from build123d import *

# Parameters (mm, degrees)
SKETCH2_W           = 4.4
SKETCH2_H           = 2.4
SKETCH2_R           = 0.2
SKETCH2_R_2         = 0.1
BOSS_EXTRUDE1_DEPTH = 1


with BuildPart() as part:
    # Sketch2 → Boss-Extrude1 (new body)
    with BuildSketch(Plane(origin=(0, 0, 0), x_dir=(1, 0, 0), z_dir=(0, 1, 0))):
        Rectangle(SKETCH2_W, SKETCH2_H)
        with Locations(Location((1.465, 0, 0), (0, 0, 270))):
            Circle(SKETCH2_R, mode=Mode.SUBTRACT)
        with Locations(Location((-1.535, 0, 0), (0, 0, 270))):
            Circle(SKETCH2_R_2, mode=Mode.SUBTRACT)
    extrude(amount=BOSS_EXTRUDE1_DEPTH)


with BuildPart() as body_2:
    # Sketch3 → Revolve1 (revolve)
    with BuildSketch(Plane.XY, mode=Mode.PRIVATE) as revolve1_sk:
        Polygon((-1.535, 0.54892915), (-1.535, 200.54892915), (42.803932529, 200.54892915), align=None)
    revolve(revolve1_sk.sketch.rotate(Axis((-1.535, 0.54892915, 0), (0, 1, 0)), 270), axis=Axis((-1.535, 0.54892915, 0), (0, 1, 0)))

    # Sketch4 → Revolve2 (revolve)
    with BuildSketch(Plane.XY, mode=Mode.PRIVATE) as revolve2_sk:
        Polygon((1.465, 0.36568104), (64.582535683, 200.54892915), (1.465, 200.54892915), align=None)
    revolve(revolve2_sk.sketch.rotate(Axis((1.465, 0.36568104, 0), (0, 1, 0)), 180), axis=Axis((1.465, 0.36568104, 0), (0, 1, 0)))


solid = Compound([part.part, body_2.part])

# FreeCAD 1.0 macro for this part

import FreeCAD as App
import Part
import Sketcher
Q = App.Units.Quantity


def add_polygon(sketch, points):
    """Adds a closed chain of lines whose ends are joined by coincident constraints."""
    first, n = sketch.GeometryCount, len(points)
    for a, b in zip(points, points[1:] + points[:1]):
        sketch.addGeometry(Part.LineSegment(App.Vector(*a, 0), App.Vector(*b, 0)), False)
    for i in range(n):
        sketch.addConstraint(Sketcher.Constraint("Coincident", first + i, 2, first + (i + 1) % n, 1))

doc = App.newDocument("Part")
body = doc.addObject("PartDesign::Body", "Body")

sketch1 = body.newObject("Sketcher::SketchObject", "Sketch")
sketch1.AttachmentSupport = (doc.getObject("XZ_Plane"), [""])
sketch1.MapMode = "FlatFace"
add_polygon(sketch1, [(-2.2, -1.2), (-2.2, 1.2), (2.2, 1.2), (2.2, -1.2)])
sketch1.addGeometry(Part.Circle(App.Vector(-1.53, 0, 0), App.Vector(0, 0, 1), 0.1), False)
sketch1.addGeometry(Part.Circle(App.Vector(1.47, 0, 0), App.Vector(0, 0, 1), 0.2), False)
sketch1.addConstraint(Sketcher.Constraint("Vertical", 0))
sketch1.addConstraint(Sketcher.Constraint("Horizontal", 1))
sketch1.addConstraint(Sketcher.Constraint("Vertical", 2))
sketch1.addConstraint(Sketcher.Constraint("Horizontal", 3))
sketch1.addConstraint(Sketcher.Constraint("Symmetric", 0, 2, 2, 2, -1, 1))
sketch1.addConstraint(Sketcher.Constraint("PointOnObject", 4, 3, -1))
sketch1.addConstraint(Sketcher.Constraint("PointOnObject", 5, 3, -1))
sketch1.addConstraint(Sketcher.Constraint("Diameter", 4, 0.2))
sketch1.addConstraint(Sketcher.Constraint("Diameter", 5, 0.4))
sketch1.addConstraint(Sketcher.Constraint("DistanceX", 1, 1, 1, 2, 4.4))
sketch1.addConstraint(Sketcher.Constraint("DistanceY", 0, 1, 0, 2, 2.4))
sketch1.addConstraint(Sketcher.Constraint("DistanceX", 4, 3, 5, 3, 3.0))
sketch1.addConstraint(Sketcher.Constraint("DistanceX", 4, 3, -1, 1, 1.535))
pad1 = body.newObject("PartDesign::Pad", "Pad")
pad1.Profile = sketch1
pad1.Length = 1
pad1.Reversed = True
body2 = doc.addObject("PartDesign::Body", "Body001")

sketch2 = body2.newObject("Sketcher::SketchObject", "Sketch001")
sketch2.AttachmentSupport = (doc.getObject("XY_Plane001"), [""])
sketch2.MapMode = "FlatFace"
add_polygon(sketch2, [(-2, 201), (-2, 1), (43, 201)])
sketch2.addGeometry(Part.LineSegment(App.Vector(-2, 1, 0), App.Vector(-2, 201, 0)), True)
sketch2.addConstraint(Sketcher.Constraint("Vertical", 0))
sketch2.addConstraint(Sketcher.Constraint("Horizontal", 2))
sketch2.addConstraint(Sketcher.Constraint("Vertical", 3))
sketch2.addConstraint(Sketcher.Constraint("Coincident", 3, 1, 0, 2))
sketch2.addConstraint(Sketcher.Constraint("Horizontal", 1, 2, 3, 2))
sketch2.addConstraint(Sketcher.Constraint("DistanceY", 0, 2, 0, 1, 200.0))
sketch2.addConstraint(Sketcher.Constraint("Angle", 1, Q("77.5 deg")))
sketch2.addConstraint(Sketcher.Constraint("DistanceX", 0, 2, -1, 1, 1.535))
sketch2.addConstraint(Sketcher.Constraint("DistanceY", -1, 1, 0, 2, 0.548929))
revolution = body2.newObject("PartDesign::Revolution", "Revolution")
revolution.Profile = sketch2
revolution.ReferenceAxis = (sketch2, ["Axis0"])
revolution.Angle = 360

sketch3 = body2.newObject("Sketcher::SketchObject", "Sketch002")
sketch3.AttachmentSupport = (doc.getObject("XY_Plane001"), [""])
sketch3.MapMode = "FlatFace"
add_polygon(sketch3, [(1, 0), (65, 201), (1, 201)])
sketch3.addGeometry(Part.LineSegment(App.Vector(1, 0, 0), App.Vector(1, 201, 0)), True)
sketch3.addConstraint(Sketcher.Constraint("Horizontal", 1))
sketch3.addConstraint(Sketcher.Constraint("Vertical", 2))
sketch3.addConstraint(Sketcher.Constraint("Vertical", 3))
sketch3.addConstraint(Sketcher.Constraint("Coincident", 3, 1, 2, 2))
sketch3.addConstraint(Sketcher.Constraint("Horizontal", 0, 2, 3, 2))
sketch3.addConstraint(Sketcher.Constraint("Angle", 0, Q("72.5 deg")))
sketch3.addConstraint(Sketcher.Constraint("DistanceX", -1, 1, 1, 2, 1.465))
sketch3.addConstraint(Sketcher.Constraint("DistanceY", 2, 2, 2, 1, 200.183248))
sketch3.addConstraint(Sketcher.Constraint("DistanceY", -1, 1, 0, 2, 200.548929))
revolution2 = body2.newObject("PartDesign::Revolution", "Revolution001")
revolution2.Profile = sketch3
revolution2.ReferenceAxis = (sketch3, ["Axis0"])
revolution2.Angle = 360

doc.recompute()
